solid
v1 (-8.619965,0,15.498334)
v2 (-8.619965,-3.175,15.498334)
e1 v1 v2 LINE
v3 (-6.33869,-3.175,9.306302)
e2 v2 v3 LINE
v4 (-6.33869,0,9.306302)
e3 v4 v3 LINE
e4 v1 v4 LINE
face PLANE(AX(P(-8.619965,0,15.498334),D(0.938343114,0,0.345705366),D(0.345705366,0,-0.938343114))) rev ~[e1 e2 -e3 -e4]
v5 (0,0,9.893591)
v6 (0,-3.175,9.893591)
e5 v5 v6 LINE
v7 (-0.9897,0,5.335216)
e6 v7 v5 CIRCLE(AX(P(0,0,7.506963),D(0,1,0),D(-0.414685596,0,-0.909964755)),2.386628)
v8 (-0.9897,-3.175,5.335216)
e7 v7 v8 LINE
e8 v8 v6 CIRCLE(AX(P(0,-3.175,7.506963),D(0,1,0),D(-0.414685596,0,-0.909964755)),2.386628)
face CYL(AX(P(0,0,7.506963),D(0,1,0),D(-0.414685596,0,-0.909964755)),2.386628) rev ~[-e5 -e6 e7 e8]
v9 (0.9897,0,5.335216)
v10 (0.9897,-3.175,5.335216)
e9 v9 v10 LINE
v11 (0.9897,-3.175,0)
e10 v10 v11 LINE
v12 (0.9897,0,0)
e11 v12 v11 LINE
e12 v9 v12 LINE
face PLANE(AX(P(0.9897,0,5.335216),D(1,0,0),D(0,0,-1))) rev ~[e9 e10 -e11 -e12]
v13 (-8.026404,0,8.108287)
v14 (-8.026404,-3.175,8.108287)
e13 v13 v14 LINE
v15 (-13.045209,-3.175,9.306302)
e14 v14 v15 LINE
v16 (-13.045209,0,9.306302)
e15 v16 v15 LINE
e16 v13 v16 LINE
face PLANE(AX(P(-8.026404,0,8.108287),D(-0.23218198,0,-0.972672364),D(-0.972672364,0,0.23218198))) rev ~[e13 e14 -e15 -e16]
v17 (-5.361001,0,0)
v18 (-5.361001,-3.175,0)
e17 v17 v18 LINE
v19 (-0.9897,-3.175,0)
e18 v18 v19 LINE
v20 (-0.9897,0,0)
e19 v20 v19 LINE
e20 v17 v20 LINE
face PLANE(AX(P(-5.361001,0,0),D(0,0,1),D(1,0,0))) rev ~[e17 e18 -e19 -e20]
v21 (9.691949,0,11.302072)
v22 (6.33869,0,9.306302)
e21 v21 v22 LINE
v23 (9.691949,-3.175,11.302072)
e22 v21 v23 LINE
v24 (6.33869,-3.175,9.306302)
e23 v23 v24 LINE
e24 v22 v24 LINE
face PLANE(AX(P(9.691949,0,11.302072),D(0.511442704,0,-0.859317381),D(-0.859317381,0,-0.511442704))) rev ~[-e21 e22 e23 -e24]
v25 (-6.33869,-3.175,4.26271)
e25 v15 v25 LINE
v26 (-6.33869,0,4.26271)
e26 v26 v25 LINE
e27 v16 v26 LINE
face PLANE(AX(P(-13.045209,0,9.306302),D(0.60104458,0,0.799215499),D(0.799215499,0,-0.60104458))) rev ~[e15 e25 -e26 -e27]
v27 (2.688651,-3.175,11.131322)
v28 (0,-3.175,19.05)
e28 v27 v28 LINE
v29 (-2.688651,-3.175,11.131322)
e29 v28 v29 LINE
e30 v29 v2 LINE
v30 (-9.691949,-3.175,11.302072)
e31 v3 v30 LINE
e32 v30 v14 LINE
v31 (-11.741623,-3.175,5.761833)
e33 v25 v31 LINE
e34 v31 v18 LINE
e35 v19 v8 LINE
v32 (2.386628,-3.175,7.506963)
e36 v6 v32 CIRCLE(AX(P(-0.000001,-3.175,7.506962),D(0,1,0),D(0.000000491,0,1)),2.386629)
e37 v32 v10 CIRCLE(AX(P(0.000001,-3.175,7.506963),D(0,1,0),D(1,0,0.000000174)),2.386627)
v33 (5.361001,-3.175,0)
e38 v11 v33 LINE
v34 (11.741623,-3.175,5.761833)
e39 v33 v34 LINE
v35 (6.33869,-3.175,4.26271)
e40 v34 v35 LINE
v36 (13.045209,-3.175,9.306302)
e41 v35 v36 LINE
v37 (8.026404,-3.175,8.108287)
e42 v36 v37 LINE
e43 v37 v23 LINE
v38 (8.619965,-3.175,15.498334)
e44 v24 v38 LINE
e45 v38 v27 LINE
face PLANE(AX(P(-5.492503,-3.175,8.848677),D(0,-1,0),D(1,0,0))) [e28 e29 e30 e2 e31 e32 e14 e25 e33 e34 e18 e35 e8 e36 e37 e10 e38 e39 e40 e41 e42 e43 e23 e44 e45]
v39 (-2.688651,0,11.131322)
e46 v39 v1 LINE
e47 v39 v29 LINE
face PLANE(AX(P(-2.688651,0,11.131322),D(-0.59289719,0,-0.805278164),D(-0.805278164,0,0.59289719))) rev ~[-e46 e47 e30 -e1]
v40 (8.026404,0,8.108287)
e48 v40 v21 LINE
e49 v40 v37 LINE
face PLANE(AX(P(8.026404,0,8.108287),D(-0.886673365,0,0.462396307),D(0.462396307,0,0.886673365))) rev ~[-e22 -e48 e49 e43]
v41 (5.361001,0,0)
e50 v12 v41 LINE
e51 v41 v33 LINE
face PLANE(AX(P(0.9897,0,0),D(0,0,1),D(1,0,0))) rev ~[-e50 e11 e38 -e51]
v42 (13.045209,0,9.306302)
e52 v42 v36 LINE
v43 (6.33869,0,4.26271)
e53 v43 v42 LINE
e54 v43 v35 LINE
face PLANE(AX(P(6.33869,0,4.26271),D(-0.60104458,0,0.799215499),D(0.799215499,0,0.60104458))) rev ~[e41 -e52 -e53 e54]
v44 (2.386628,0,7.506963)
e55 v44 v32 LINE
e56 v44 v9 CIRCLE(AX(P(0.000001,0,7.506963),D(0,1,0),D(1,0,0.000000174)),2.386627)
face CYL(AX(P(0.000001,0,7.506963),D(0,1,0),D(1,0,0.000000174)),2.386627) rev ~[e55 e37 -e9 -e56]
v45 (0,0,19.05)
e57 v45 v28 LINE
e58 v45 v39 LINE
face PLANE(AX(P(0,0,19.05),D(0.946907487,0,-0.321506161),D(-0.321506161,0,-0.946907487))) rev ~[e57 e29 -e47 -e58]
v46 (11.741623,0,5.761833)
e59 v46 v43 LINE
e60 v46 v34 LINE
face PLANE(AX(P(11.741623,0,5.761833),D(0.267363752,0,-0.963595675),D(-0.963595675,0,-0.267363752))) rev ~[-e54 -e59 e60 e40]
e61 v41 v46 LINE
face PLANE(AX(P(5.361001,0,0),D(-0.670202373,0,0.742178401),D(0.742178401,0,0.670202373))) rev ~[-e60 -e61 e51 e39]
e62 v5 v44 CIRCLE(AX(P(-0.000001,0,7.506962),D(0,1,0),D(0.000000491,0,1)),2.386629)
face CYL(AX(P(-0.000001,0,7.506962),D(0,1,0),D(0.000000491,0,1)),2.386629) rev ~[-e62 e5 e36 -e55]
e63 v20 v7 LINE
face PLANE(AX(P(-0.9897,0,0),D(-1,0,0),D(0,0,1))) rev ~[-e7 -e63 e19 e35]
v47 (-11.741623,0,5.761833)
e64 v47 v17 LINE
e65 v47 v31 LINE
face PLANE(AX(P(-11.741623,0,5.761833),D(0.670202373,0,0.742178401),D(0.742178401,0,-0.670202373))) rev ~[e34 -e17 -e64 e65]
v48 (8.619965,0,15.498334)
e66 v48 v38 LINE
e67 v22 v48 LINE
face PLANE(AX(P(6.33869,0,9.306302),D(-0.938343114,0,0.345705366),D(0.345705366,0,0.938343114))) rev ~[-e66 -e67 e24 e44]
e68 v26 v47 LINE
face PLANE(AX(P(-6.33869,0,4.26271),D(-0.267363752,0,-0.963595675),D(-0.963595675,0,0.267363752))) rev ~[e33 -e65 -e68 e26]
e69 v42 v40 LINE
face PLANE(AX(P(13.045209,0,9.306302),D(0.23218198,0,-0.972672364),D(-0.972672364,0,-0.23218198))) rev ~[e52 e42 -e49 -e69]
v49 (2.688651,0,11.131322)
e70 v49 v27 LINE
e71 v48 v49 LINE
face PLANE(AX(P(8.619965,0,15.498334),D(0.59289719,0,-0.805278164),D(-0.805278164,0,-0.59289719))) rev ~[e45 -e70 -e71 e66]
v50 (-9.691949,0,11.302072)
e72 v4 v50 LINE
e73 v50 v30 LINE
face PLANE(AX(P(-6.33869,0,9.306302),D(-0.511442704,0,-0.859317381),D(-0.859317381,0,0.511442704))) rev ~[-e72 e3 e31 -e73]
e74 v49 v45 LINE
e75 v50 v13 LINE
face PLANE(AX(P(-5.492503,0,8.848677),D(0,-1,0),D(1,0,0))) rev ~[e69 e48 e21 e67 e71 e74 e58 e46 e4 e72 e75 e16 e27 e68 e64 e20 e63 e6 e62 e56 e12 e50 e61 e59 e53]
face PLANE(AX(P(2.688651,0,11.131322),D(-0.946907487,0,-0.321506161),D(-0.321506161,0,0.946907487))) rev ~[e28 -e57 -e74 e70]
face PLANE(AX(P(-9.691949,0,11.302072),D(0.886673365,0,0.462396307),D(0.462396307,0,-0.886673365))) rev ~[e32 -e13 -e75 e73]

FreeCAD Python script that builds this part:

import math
import FreeCAD as App
import Part
import Sketcher

V = App.Vector
Q = App.Units.Quantity

doc = App.newDocument("Part")
body = doc.addObject("PartDesign::Body", "Body")

# Sketch on XZ plane
sketch1 = doc.addObject("Sketcher::SketchObject", "Sketch")
body.addObject(sketch1)
sketch1.AttachmentSupport = (doc.XZ_Plane, [""])
sketch1.MapMode = "FlatFace"
sketch1.addGeometry([
    Part.LineSegment(V(-5.4, 0, 0), V(-1, 0, 0)),  # 0
    Part.LineSegment(V(-1, 0, 0), V(-1, 5.3, 0)),  # 1
    Part.ArcOfCircle(Part.Circle(V(0, 7.5, 0), V(0, 0, 1), 2.4), math.radians(90), math.radians(246)),  # 2
    Part.ArcOfCircle(Part.Circle(V(0, 7.5, 0), V(0, 0, 1), 2.4), math.radians(0), math.radians(90)),  # 3
    Part.ArcOfCircle(Part.Circle(V(0, 7.5, 0), V(0, 0, 1), 2.4), math.radians(-66), math.radians(0)),  # 4
    Part.LineSegment(V(1, 5.3, 0), V(1, 0, 0)),  # 5
    Part.LineSegment(V(1, 0, 0), V(5.4, 0, 0)),  # 6
    Part.LineSegment(V(5.4, 0, 0), V(11.7, 5.8, 0)),  # 7
    Part.LineSegment(V(11.7, 5.8, 0), V(6.3, 4.3, 0)),  # 8
    Part.LineSegment(V(6.3, 4.3, 0), V(13, 9.3, 0)),  # 9
    Part.LineSegment(V(13, 9.3, 0), V(8, 8.1, 0)),  # 10
    Part.LineSegment(V(8, 8.1, 0), V(9.7, 11.3, 0)),  # 11
    Part.LineSegment(V(9.7, 11.3, 0), V(6.3, 9.3, 0)),  # 12
    Part.LineSegment(V(6.3, 9.3, 0), V(8.6, 15.5, 0)),  # 13
    Part.LineSegment(V(8.6, 15.5, 0), V(2.7, 11.1, 0)),  # 14
    Part.LineSegment(V(2.7, 11.1, 0), V(0, 19.1, 0)),  # 15
    Part.LineSegment(V(0, 19.1, 0), V(-2.7, 11.1, 0)),  # 16
    Part.LineSegment(V(-2.7, 11.1, 0), V(-8.6, 15.5, 0)),  # 17
    Part.LineSegment(V(-8.6, 15.5, 0), V(-6.3, 9.3, 0)),  # 18
    Part.LineSegment(V(-6.3, 9.3, 0), V(-9.7, 11.3, 0)),  # 19
    Part.LineSegment(V(-9.7, 11.3, 0), V(-8, 8.1, 0)),  # 20
    Part.LineSegment(V(-8, 8.1, 0), V(-13, 9.3, 0)),  # 21
    Part.LineSegment(V(-13, 9.3, 0), V(-6.3, 4.3, 0)),  # 22
    Part.LineSegment(V(-6.3, 4.3, 0), V(-11.7, 5.8, 0)),  # 23
    Part.LineSegment(V(-11.7, 5.8, 0), V(-5.4, 0, 0)),  # 24
], False)
sketch1.addConstraint([
    Sketcher.Constraint("Coincident", 0, 2, 1, 1),
    Sketcher.Constraint("Coincident", 1, 2, 2, 2),
    Sketcher.Constraint("Tangent", 2, 1, 3, 2),
    Sketcher.Constraint("Tangent", 3, 1, 4, 2),
    Sketcher.Constraint("Coincident", 4, 1, 5, 1),
    Sketcher.Constraint("Coincident", 5, 2, 6, 1),
    Sketcher.Constraint("Coincident", 6, 2, 7, 1),
    Sketcher.Constraint("Coincident", 7, 2, 8, 1),
    Sketcher.Constraint("Coincident", 8, 2, 9, 1),
    Sketcher.Constraint("Coincident", 9, 2, 10, 1),
    Sketcher.Constraint("Coincident", 10, 2, 11, 1),
    Sketcher.Constraint("Coincident", 11, 2, 12, 1),
    Sketcher.Constraint("Coincident", 12, 2, 13, 1),
    Sketcher.Constraint("Coincident", 13, 2, 14, 1),
    Sketcher.Constraint("Coincident", 14, 2, 15, 1),
    Sketcher.Constraint("Coincident", 15, 2, 16, 1),
    Sketcher.Constraint("Coincident", 16, 2, 17, 1),
    Sketcher.Constraint("Coincident", 17, 2, 18, 1),
    Sketcher.Constraint("Coincident", 18, 2, 19, 1),
    Sketcher.Constraint("Coincident", 19, 2, 20, 1),
    Sketcher.Constraint("Coincident", 20, 2, 21, 1),
    Sketcher.Constraint("Coincident", 21, 2, 22, 1),
    Sketcher.Constraint("Coincident", 22, 2, 23, 1),
    Sketcher.Constraint("Coincident", 23, 2, 24, 1),
    Sketcher.Constraint("Coincident", 24, 2, 0, 1),
    Sketcher.Constraint("Horizontal", 0),
    Sketcher.Constraint("Vertical", 1),
    Sketcher.Constraint("Vertical", 5),
    Sketcher.Constraint("Horizontal", 6),
    Sketcher.Constraint("Coincident", 4, 3, 2, 3),
    Sketcher.Constraint("Symmetric", 0, 2, 5, 2, -1, 1),
    Sketcher.Constraint("Symmetric", 14, 2, 16, 2, -2),
    Sketcher.Constraint("Symmetric", 13, 2, 17, 2, -2),
    Sketcher.Constraint("Symmetric", 12, 2, 18, 2, -2),
    Sketcher.Constraint("Symmetric", 11, 2, 19, 2, -2),
    Sketcher.Constraint("Symmetric", 10, 2, 20, 2, -2),
    Sketcher.Constraint("Symmetric", 9, 2, 21, 2, -2),
    Sketcher.Constraint("Symmetric", 8, 2, 22, 2, -2),
    Sketcher.Constraint("Symmetric", 7, 2, 23, 2, -2),
    Sketcher.Constraint("Symmetric", 6, 2, 24, 2, -2),
    Sketcher.Constraint("PointOnObject", 2, 3, -2),
    Sketcher.Constraint("PointOnObject", 2, 1, -2),
    Sketcher.Constraint("PointOnObject", 15, 2, -2),
    Sketcher.Constraint("Horizontal", 4, 3, 3, 1),
    Sketcher.Constraint("Horizontal", 9, 2, 12, 2),
    Sketcher.Constraint("Vertical", 8, 2, 12, 2),
    Sketcher.Constraint("DistanceY", -1, 1, 15, 2, Q("0.75 in")),
    Sketcher.Constraint("DistanceX", -1, 1, 10, 2, Q("0.3160002 in")),
    Sketcher.Constraint("Radius", 3, 2.386629),
    Sketcher.Constraint("DistanceX", 0, 1, 0, 2, 4.371301),
    Sketcher.Constraint("Distance", 13, 6.5989),
    Sketcher.Constraint("DistanceX", 0, 2, -1, 1, 0.9897),
    Sketcher.Constraint("Distance", 10, 5.15981),
    Sketcher.Constraint("DistanceY", 1, 1, 1, 2, 5.335216),
    Sketcher.Constraint("DistanceX", -1, 1, 8, 2, 6.33869),
    Sketcher.Constraint("DistanceY", -1, 1, 8, 2, 4.26271),
    Sketcher.Constraint("DistanceX", -1, 1, 9, 2, 13.045209),
    Sketcher.Constraint("DistanceX", -1, 1, 11, 2, 9.691949),
    Sketcher.Constraint("DistanceX", -1, 1, 14, 2, 2.688651),
    Sketcher.Constraint("DistanceY", 7, 2, 3, 1, 1.74513),
    Sketcher.Constraint("DistanceX", 4, 3, 7, 2, 11.741622),
    Sketcher.Constraint("DistanceY", 7, 2, 9, 2, 3.544469),
    Sketcher.Constraint("DistanceY", 9, 2, 11, 2, 1.99577),
    Sketcher.Constraint("DistanceY", 11, 2, 13, 2, 4.196262),
    Sketcher.Constraint("DistanceY", 2, 1, 14, 2, 1.237731),
])
pad1 = doc.addObject("PartDesign::Pad", "Pad")
body.addObject(pad1)
pad1.Profile = sketch1
pad1.Length = Q("0.125 in")

doc.recompute()
